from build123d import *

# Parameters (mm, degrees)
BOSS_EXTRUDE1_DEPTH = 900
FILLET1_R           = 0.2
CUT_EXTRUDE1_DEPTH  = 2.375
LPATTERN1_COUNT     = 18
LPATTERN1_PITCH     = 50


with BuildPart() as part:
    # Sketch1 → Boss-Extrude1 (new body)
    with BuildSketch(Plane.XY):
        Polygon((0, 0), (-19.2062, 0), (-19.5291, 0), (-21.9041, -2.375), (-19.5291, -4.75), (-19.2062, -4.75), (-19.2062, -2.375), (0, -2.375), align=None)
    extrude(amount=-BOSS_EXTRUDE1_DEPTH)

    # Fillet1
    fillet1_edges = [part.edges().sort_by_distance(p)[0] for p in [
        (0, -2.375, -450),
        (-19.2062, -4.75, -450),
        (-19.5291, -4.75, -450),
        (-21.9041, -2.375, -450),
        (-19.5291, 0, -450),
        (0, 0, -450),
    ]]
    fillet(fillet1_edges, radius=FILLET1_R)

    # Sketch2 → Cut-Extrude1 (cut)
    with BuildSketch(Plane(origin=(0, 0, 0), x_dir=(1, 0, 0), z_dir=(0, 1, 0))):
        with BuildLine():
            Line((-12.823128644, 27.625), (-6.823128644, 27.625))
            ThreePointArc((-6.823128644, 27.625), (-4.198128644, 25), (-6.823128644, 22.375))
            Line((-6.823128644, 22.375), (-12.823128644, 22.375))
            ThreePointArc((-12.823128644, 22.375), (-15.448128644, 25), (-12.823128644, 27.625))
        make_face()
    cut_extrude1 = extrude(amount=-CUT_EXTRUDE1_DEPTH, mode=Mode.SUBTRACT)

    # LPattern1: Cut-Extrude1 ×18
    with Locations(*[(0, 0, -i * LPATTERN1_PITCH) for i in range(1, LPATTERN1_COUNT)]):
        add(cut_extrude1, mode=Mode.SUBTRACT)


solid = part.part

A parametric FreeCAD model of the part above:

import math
import FreeCAD as App
import Part
import Sketcher


def edges_at(feature, points):
    """Names of the edges that pass closest to the given points."""
    edges = feature.Shape.Edges
    near = lambda p: min(range(len(edges)), key=lambda i: edges[i].distToShape(Part.Vertex(*p))[0])
    return sorted({f"Edge{near(p) + 1}" for p in points})

doc = App.newDocument("Part")
body = doc.addObject("PartDesign::Body", "Body")

# Sketch on XY plane
sketch1 = body.newObject("Sketcher::SketchObject", "Sketch")
sketch1.AttachmentSupport = (doc.getObject("XY_Plane"), [""])
sketch1.MapMode = "FlatFace"
sketch1.addGeometry([
    Part.LineSegment(App.Vector(0, 0, 0), App.Vector(-19.53, 0, 0)),  # 0
    Part.LineSegment(App.Vector(-19.53, 0, 0), App.Vector(-21.9, -2.38, 0)),  # 1
    Part.LineSegment(App.Vector(-21.9, -2.38, 0), App.Vector(-19.53, -4.75, 0)),  # 2
    Part.LineSegment(App.Vector(-19.53, -4.75, 0), App.Vector(-19.21, -4.75, 0)),  # 3
    Part.LineSegment(App.Vector(-19.21, -4.75, 0), App.Vector(-19.21, -2.38, 0)),  # 4
    Part.LineSegment(App.Vector(-19.21, -2.38, 0), App.Vector(0, -2.38, 0)),  # 5
    Part.LineSegment(App.Vector(0, -2.38, 0), App.Vector(0, 0, 0)),  # 6
], False)
sketch1.addConstraint([
    Sketcher.Constraint("Coincident", 0, 2, 1, 1),
    Sketcher.Constraint("Coincident", 1, 2, 2, 1),
    Sketcher.Constraint("Coincident", 2, 2, 3, 1),
    Sketcher.Constraint("Coincident", 3, 2, 4, 1),
    Sketcher.Constraint("Coincident", 4, 2, 5, 1),
    Sketcher.Constraint("Coincident", 5, 2, 6, 1),
    Sketcher.Constraint("Coincident", 6, 2, 0, 1),
    Sketcher.Constraint("Horizontal", 0),
    Sketcher.Constraint("Horizontal", 3),
    Sketcher.Constraint("Vertical", 4),
    Sketcher.Constraint("Horizontal", 5),
    Sketcher.Constraint("Vertical", 6),
    Sketcher.Constraint("Coincident", 6, 2, -1, 1),
    Sketcher.Constraint("Perpendicular", 1, 2),
    Sketcher.Constraint("Horizontal", 1, 2, 4, 2),
    Sketcher.Constraint("Vertical", 0, 2, 2, 2),
    Sketcher.Constraint("Equal", 4, 6),
    Sketcher.Constraint("DistanceY", 4, 1, 4, 2, 2.375),
    Sketcher.Constraint("DistanceX", 0, 2, 0, 1, 19.5291),
    Sketcher.Constraint("DistanceX", 3, 1, 3, 2, 0.3229),
])
pad1 = body.newObject("PartDesign::Pad", "Pad")
pad1.Profile = sketch1
pad1.Length = 900
pad1.Reversed = True
doc.recompute()

fillet = body.newObject("PartDesign::Fillet", "Fillet")
fillet.Base = (pad1, edges_at(pad1, [
    (0, -2.375, -450),
    (-19.206, -4.75, -450),
    (-19.529, -4.75, -450),
    (-21.904, -2.375, -450),
    (-19.529, 0, -450),
    (0, 0, -450),
]))
fillet.Radius = 0.2

# Sketch on XZ plane
sketch2 = body.newObject("Sketcher::SketchObject", "Sketch001")
sketch2.AttachmentSupport = (doc.getObject("XZ_Plane"), [""])
sketch2.MapMode = "FlatFace"
sketch2.addGeometry([
    Part.LineSegment(App.Vector(-6.8, -27.6, 0), App.Vector(-12.8, -27.6, 0)),
    Part.ArcOfCircle(Part.Circle(App.Vector(-12.8, -25, 0), App.Vector(0, 0, 1), 2.6), math.radians(90), math.radians(270)),
    Part.LineSegment(App.Vector(-12.8, -22.4, 0), App.Vector(-6.8, -22.4, 0)),
    Part.ArcOfCircle(Part.Circle(App.Vector(-6.8, -25, 0), App.Vector(0, 0, 1), 2.6), math.radians(-90), math.radians(90)),
], False)
sketch2.addConstraint([
    Sketcher.Constraint("Tangent", 0, 2, 1, 2),
    Sketcher.Constraint("Tangent", 1, 1, 2, 1),
    Sketcher.Constraint("Tangent", 2, 2, 3, 2),
    Sketcher.Constraint("Tangent", 3, 1, 0, 1),
    Sketcher.Constraint("Horizontal", 0),
    Sketcher.Constraint("Horizontal", 2),
    Sketcher.Constraint("DistanceX", 0, 2, 0, 1, 6.0),
    Sketcher.Constraint("DistanceY", 1, 3, -1, 1, 25.0),
    Sketcher.Constraint("Radius", 1, 2.625),
    Sketcher.Constraint("DistanceX", 1, 3, -1, 1, 12.823129),
])
pocket1 = body.newObject("PartDesign::Pocket", "Pocket")
pocket1.Profile = sketch2
pocket1.Length = 2.375
pocket1.Reversed = True
doc.recompute()

linearpattern = body.newObject("PartDesign::LinearPattern", "LinearPattern")
linearpattern.Originals = [pocket1]
linearpattern.Direction = (doc.getObject("Z_Axis"), [""])
linearpattern.Mode = "offset"
linearpattern.Offset = 50
linearpattern.Occurrences = 18
linearpattern.Reversed = True
body.Tip = linearpattern

doc.recompute()
